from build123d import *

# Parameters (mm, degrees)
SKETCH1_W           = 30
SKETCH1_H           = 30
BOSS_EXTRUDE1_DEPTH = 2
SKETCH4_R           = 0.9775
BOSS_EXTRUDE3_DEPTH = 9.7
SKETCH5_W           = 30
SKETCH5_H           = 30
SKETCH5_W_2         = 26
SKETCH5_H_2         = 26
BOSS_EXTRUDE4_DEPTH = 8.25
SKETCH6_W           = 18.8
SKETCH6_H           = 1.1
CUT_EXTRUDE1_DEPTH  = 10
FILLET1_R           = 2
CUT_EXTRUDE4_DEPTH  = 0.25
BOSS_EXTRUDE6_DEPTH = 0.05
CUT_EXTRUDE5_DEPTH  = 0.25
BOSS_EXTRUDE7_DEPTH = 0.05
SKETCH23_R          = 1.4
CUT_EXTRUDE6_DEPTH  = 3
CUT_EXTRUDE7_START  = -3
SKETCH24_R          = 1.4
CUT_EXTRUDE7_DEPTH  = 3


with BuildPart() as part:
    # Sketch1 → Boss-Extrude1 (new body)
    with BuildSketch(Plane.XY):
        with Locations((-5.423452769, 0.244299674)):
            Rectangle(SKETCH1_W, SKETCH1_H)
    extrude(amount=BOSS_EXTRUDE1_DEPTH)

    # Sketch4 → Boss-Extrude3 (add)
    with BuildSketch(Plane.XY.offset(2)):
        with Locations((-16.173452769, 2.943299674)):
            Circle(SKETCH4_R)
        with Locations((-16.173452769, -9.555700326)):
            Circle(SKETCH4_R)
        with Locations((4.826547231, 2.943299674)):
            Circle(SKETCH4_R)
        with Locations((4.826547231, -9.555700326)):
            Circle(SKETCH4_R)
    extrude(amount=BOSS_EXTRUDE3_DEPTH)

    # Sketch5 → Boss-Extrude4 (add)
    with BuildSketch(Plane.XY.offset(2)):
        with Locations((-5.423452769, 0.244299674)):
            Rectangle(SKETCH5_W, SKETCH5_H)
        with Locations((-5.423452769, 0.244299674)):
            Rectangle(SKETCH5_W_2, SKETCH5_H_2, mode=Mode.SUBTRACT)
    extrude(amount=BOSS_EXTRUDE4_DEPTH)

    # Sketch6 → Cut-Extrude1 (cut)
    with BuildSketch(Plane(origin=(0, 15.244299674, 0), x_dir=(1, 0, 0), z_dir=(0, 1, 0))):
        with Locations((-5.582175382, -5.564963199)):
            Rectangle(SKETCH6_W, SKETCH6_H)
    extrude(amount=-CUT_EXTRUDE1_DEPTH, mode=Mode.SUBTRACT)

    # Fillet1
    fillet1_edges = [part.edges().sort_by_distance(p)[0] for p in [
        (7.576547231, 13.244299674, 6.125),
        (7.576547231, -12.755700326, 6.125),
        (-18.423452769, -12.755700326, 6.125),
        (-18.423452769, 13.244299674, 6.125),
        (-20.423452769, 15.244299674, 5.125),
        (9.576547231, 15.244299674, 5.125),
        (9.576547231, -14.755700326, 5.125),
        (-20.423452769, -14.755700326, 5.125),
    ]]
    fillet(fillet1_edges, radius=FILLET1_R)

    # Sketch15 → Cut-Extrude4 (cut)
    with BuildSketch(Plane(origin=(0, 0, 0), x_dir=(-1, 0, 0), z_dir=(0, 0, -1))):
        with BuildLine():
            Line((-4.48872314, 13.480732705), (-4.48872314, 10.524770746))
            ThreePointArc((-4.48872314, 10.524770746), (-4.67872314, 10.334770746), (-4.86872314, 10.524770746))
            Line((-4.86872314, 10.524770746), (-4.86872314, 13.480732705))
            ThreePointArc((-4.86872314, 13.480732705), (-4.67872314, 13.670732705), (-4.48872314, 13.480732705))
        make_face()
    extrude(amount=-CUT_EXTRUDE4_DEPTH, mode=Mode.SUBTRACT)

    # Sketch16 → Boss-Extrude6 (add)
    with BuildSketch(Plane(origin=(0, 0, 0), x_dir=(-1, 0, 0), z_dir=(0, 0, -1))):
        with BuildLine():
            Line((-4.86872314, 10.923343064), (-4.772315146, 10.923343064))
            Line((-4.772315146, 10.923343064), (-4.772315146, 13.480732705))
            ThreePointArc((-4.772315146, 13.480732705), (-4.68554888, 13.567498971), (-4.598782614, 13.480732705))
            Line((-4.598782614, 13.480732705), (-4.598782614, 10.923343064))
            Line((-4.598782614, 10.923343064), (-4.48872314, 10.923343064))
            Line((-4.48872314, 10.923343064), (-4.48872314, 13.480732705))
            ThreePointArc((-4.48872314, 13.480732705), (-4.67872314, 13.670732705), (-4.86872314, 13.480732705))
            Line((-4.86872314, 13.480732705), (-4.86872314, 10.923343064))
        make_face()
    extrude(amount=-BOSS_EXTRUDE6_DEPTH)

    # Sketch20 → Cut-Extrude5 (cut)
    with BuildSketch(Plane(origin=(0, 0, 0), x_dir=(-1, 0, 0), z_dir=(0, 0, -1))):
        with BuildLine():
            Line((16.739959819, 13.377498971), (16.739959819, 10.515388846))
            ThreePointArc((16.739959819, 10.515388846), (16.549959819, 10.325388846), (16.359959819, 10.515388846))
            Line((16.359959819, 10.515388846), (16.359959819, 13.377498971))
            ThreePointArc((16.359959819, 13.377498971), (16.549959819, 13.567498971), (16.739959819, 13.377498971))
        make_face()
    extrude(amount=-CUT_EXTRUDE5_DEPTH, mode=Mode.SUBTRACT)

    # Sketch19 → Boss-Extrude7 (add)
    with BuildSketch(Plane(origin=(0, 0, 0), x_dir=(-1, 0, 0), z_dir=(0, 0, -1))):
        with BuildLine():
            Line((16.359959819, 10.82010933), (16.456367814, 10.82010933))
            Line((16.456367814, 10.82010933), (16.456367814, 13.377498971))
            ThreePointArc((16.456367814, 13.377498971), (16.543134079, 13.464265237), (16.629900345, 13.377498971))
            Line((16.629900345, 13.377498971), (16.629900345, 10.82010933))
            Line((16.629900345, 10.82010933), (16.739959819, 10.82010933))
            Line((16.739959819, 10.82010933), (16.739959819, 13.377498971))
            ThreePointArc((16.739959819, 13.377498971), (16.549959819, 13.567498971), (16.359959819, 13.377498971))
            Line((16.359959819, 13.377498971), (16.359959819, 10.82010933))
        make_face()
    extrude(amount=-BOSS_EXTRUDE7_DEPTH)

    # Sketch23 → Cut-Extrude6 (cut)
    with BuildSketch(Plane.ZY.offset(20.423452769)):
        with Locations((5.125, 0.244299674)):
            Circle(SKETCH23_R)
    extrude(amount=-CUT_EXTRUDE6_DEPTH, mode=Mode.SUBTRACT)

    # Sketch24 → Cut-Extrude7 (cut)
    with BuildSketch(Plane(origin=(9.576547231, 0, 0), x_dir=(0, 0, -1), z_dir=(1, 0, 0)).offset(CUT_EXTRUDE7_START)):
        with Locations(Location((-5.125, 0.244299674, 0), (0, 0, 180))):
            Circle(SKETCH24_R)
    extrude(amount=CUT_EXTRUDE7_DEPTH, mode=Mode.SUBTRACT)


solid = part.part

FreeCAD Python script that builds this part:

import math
import FreeCAD as App
import Part
import Sketcher
Q = App.Units.Quantity


def edges_at(feature, points):
    """Names of the edges that pass closest to the given points."""
    edges = feature.Shape.Edges
    near = lambda p: min(range(len(edges)), key=lambda i: edges[i].distToShape(Part.Vertex(*p))[0])
    return sorted({f"Edge{near(p) + 1}" for p in points})

doc = App.newDocument("Part")
body = doc.addObject("PartDesign::Body", "Body")

# Sketch on XY plane
sketch1 = doc.addObject("Sketcher::SketchObject", "Sketch")
body.addObject(sketch1)
sketch1.AttachmentSupport = (doc.XY_Plane, [""])
sketch1.MapMode = "FlatFace"
sketch1.addGeometry(Part.LineSegment(App.Vector(-20, 15, 0), App.Vector(-20, -15, 0)), False)
sketch1.addGeometry(Part.LineSegment(App.Vector(-20, -15, 0), App.Vector(10, -15, 0)), False)
sketch1.addGeometry(Part.LineSegment(App.Vector(10, -15, 0), App.Vector(10, 15, 0)), False)
sketch1.addGeometry(Part.LineSegment(App.Vector(10, 15, 0), App.Vector(-20, 15, 0)), False)
sketch1.addConstraint(Sketcher.Constraint("Coincident", 0, 2, 1, 1))
sketch1.addConstraint(Sketcher.Constraint("Coincident", 1, 2, 2, 1))
sketch1.addConstraint(Sketcher.Constraint("Coincident", 2, 2, 3, 1))
sketch1.addConstraint(Sketcher.Constraint("Coincident", 3, 2, 0, 1))
sketch1.addConstraint(Sketcher.Constraint("Vertical", 0))
sketch1.addConstraint(Sketcher.Constraint("Horizontal", 1))
sketch1.addConstraint(Sketcher.Constraint("Vertical", 2))
sketch1.addConstraint(Sketcher.Constraint("Horizontal", 3))
sketch1.addConstraint(Sketcher.Constraint("Equal", 3, 0))
sketch1.addConstraint(Sketcher.Constraint("DistanceX", 1, 1, 1, 2, Q("30 mm")))
sketch1.addConstraint(Sketcher.Constraint("DistanceY", 0, 2, -1, 1, Q("14.7557 mm")))
sketch1.addConstraint(Sketcher.Constraint("DistanceX", 0, 2, -1, 1, Q("20.423453 mm")))
pad1 = doc.addObject("PartDesign::Pad", "Pad")
body.addObject(pad1)
pad1.Profile = sketch1
pad1.Length = 2

# Sketch on XY plane
sketch2 = doc.addObject("Sketcher::SketchObject", "Sketch001")
body.addObject(sketch2)
sketch2.AttachmentSupport = (doc.XY_Plane, [""])
sketch2.MapMode = "FlatFace"
sketch2.AttachmentOffset = App.Placement(App.Vector(0, 0, 2), App.Rotation())
sketch2.addGeometry(Part.Circle(App.Vector(-16.2, 2.9, 0), App.Vector(0, 0, 1), 1), False)
sketch2.addGeometry(Part.Circle(App.Vector(-16.2, -9.6, 0), App.Vector(0, 0, 1), 1), False)
sketch2.addGeometry(Part.Circle(App.Vector(4.8, 2.9, 0), App.Vector(0, 0, 1), 1), False)
sketch2.addGeometry(Part.Circle(App.Vector(4.8, -9.6, 0), App.Vector(0, 0, 1), 1), False)
sketch2.addConstraint(Sketcher.Constraint("Equal", 0, 1))
sketch2.addConstraint(Sketcher.Constraint("Equal", 1, 2))
sketch2.addConstraint(Sketcher.Constraint("Equal", 2, 3))
sketch2.addConstraint(Sketcher.Constraint("Horizontal", 0, 3, 2, 3))
sketch2.addConstraint(Sketcher.Constraint("Horizontal", 1, 3, 3, 3))
sketch2.addConstraint(Sketcher.Constraint("Vertical", 0, 3, 1, 3))
sketch2.addConstraint(Sketcher.Constraint("Vertical", 2, 3, 3, 3))
sketch2.addConstraint(Sketcher.Constraint("Diameter", 0, Q("1.955 mm")))
sketch2.addConstraint(Sketcher.Constraint("DistanceX", 0, 3, 2, 3, Q("21 mm")))
sketch2.addConstraint(Sketcher.Constraint("DistanceY", 1, 3, 0, 3, Q("12.499 mm")))
sketch2.addConstraint(Sketcher.Constraint("DistanceY", -1, 1, 0, 3, Q("2.9433 mm")))
sketch2.addConstraint(Sketcher.Constraint("DistanceX", 0, 3, -1, 1, Q("16.173453 mm")))
pad2 = doc.addObject("PartDesign::Pad", "Pad001")
body.addObject(pad2)
pad2.Profile = sketch2
pad2.Length = 9.7

# Sketch on XY plane
sketch3 = doc.addObject("Sketcher::SketchObject", "Sketch002")
body.addObject(sketch3)
sketch3.AttachmentSupport = (doc.XY_Plane, [""])
sketch3.MapMode = "FlatFace"
sketch3.AttachmentOffset = App.Placement(App.Vector(0, 0, 2), App.Rotation())
sketch3.addGeometry(Part.LineSegment(App.Vector(-20, 15, 0), App.Vector(-20, -15, 0)), False)
sketch3.addGeometry(Part.LineSegment(App.Vector(-20, -15, 0), App.Vector(10, -15, 0)), False)
sketch3.addGeometry(Part.LineSegment(App.Vector(10, -15, 0), App.Vector(10, 15, 0)), False)
sketch3.addGeometry(Part.LineSegment(App.Vector(10, 15, 0), App.Vector(-20, 15, 0)), False)
sketch3.addGeometry(Part.LineSegment(App.Vector(8, -13, 0), App.Vector(-18, -13, 0)), False)
sketch3.addGeometry(Part.LineSegment(App.Vector(-18, -13, 0), App.Vector(-18, 13, 0)), False)
sketch3.addGeometry(Part.LineSegment(App.Vector(-18, 13, 0), App.Vector(8, 13, 0)), False)
sketch3.addGeometry(Part.LineSegment(App.Vector(8, 13, 0), App.Vector(8, -13, 0)), False)
sketch3.addConstraint(Sketcher.Constraint("Coincident", 0, 2, 1, 1))
sketch3.addConstraint(Sketcher.Constraint("Coincident", 1, 2, 2, 1))
sketch3.addConstraint(Sketcher.Constraint("Coincident", 2, 2, 3, 1))
sketch3.addConstraint(Sketcher.Constraint("Coincident", 3, 2, 0, 1))
sketch3.addConstraint(Sketcher.Constraint("Coincident", 4, 2, 5, 1))
sketch3.addConstraint(Sketcher.Constraint("Coincident", 5, 2, 6, 1))
sketch3.addConstraint(Sketcher.Constraint("Coincident", 6, 2, 7, 1))
sketch3.addConstraint(Sketcher.Constraint("Coincident", 7, 2, 4, 1))
sketch3.addConstraint(Sketcher.Constraint("Vertical", 0))
sketch3.addConstraint(Sketcher.Constraint("Horizontal", 1))
sketch3.addConstraint(Sketcher.Constraint("Vertical", 2))
sketch3.addConstraint(Sketcher.Constraint("Horizontal", 3))
sketch3.addConstraint(Sketcher.Constraint("Horizontal", 4))
sketch3.addConstraint(Sketcher.Constraint("Vertical", 5))
sketch3.addConstraint(Sketcher.Constraint("Horizontal", 6))
sketch3.addConstraint(Sketcher.Constraint("Vertical", 7))
sketch3.addConstraint(Sketcher.Constraint("Equal", 3, 0))
sketch3.addConstraint(Sketcher.Constraint("Equal", 6, 5))
sketch3.addConstraint(Sketcher.Constraint("DistanceX", 1, 1, 1, 2, Q("30 mm")))
sketch3.addConstraint(Sketcher.Constraint("DistanceX", 4, 2, 4, 1, Q("26 mm")))
sketch3.addConstraint(Sketcher.Constraint("DistanceX", 0, 2, 4, 2, Q("2 mm")))
sketch3.addConstraint(Sketcher.Constraint("DistanceY", 0, 2, 4, 2, Q("2 mm")))
sketch3.addConstraint(Sketcher.Constraint("DistanceY", 0, 2, -1, 1, Q("14.7557 mm")))
sketch3.addConstraint(Sketcher.Constraint("DistanceX", 0, 2, -1, 1, Q("20.423453 mm")))
pad3 = doc.addObject("PartDesign::Pad", "Pad002")
body.addObject(pad3)
pad3.Profile = sketch3
pad3.Length = 8.25

# Sketch on XZ plane
sketch4 = doc.addObject("Sketcher::SketchObject", "Sketch003")
body.addObject(sketch4)
sketch4.AttachmentSupport = (doc.XZ_Plane, [""])
sketch4.MapMode = "FlatFace"
sketch4.AttachmentOffset = App.Placement(App.Vector(0, 0, -15.2443), App.Rotation())
sketch4.addGeometry(Part.LineSegment(App.Vector(-15, 5, 0), App.Vector(-15, 6.1, 0)), False)
sketch4.addGeometry(Part.LineSegment(App.Vector(-15, 6.1, 0), App.Vector(3.8, 6.1, 0)), False)
sketch4.addGeometry(Part.LineSegment(App.Vector(3.8, 6.1, 0), App.Vector(3.8, 5, 0)), False)
sketch4.addGeometry(Part.LineSegment(App.Vector(3.8, 5, 0), App.Vector(-15, 5, 0)), False)
sketch4.addConstraint(Sketcher.Constraint("Coincident", 0, 2, 1, 1))
sketch4.addConstraint(Sketcher.Constraint("Coincident", 1, 2, 2, 1))
sketch4.addConstraint(Sketcher.Constraint("Coincident", 2, 2, 3, 1))
sketch4.addConstraint(Sketcher.Constraint("Coincident", 3, 2, 0, 1))
sketch4.addConstraint(Sketcher.Constraint("Vertical", 0))
sketch4.addConstraint(Sketcher.Constraint("Horizontal", 1))
sketch4.addConstraint(Sketcher.Constraint("Vertical", 2))
sketch4.addConstraint(Sketcher.Constraint("Horizontal", 3))
sketch4.addConstraint(Sketcher.Constraint("DistanceX", 1, 1, 1, 2, Q("18.8 mm")))
sketch4.addConstraint(Sketcher.Constraint("DistanceY", 0, 1, 0, 2, Q("1.1 mm")))
sketch4.addConstraint(Sketcher.Constraint("DistanceX", 0, 2, -1, 1, Q("14.982175 mm")))
sketch4.addConstraint(Sketcher.Constraint("DistanceY", -1, 1, 0, 2, Q("6.114963 mm")))
pocket1 = doc.addObject("PartDesign::Pocket", "Pocket")
body.addObject(pocket1)
pocket1.Profile = sketch4
pocket1.Length = 10
pocket1.Reversed = True
doc.recompute()

fillet = doc.addObject("PartDesign::Fillet", "Fillet")
body.addObject(fillet)
fillet.Base = (pocket1, edges_at(pocket1, [
    (7.577, 13.244, 6.125),
    (7.577, -12.756, 6.125),
    (-18.423, -12.756, 6.125),
    (-18.423, 13.244, 6.125),
    (-20.423, 15.244, 5.125),
    (9.577, 15.244, 5.125),
    (9.577, -14.756, 5.125),
    (-20.423, -14.756, 5.125),
]))
fillet.Radius = 2

# Sketch on XY plane
sketch5 = doc.addObject("Sketcher::SketchObject", "Sketch004")
body.addObject(sketch5)
sketch5.AttachmentSupport = (doc.XY_Plane, [""])
sketch5.MapMode = "FlatFace"
sketch5.addGeometry(Part.LineSegment(App.Vector(4.49, 10.52, 0), App.Vector(4.49, 13.48, 0)), False)
sketch5.addGeometry(Part.ArcOfCircle(Part.Circle(App.Vector(4.68, 13.48, 0), App.Vector(0, 0, 1), 0.19), math.radians(0), math.radians(180)), False)
sketch5.addGeometry(Part.LineSegment(App.Vector(4.87, 13.48, 0), App.Vector(4.87, 10.52, 0)), False)
sketch5.addGeometry(Part.ArcOfCircle(Part.Circle(App.Vector(4.68, 10.52, 0), App.Vector(0, 0, 1), 0.19), math.radians(180), math.radians(360)), False)
sketch5.addConstraint(Sketcher.Constraint("Tangent", 0, 2, 1, 2))
sketch5.addConstraint(Sketcher.Constraint("Tangent", 1, 1, 2, 1))
sketch5.addConstraint(Sketcher.Constraint("Tangent", 2, 2, 3, 2))
sketch5.addConstraint(Sketcher.Constraint("Tangent", 3, 1, 0, 1))
sketch5.addConstraint(Sketcher.Constraint("Vertical", 0))
sketch5.addConstraint(Sketcher.Constraint("Vertical", 2))
sketch5.addConstraint(Sketcher.Constraint("Radius", 1, Q("0.19 mm")))
sketch5.addConstraint(Sketcher.Constraint("DistanceY", 0, 1, 0, 2, Q("2.955962 mm")))
sketch5.addConstraint(Sketcher.Constraint("DistanceY", -1, 1, 3, 3, Q("10.524771 mm")))
sketch5.addConstraint(Sketcher.Constraint("DistanceX", -1, 1, 1, 3, Q("4.678723 mm")))
pocket2 = doc.addObject("PartDesign::Pocket", "Pocket001")
body.addObject(pocket2)
pocket2.Profile = sketch5
pocket2.Length = 0.25
pocket2.Reversed = True

# Sketch on XY plane
sketch6 = doc.addObject("Sketcher::SketchObject", "Sketch005")
body.addObject(sketch6)
sketch6.AttachmentSupport = (doc.XY_Plane, [""])
sketch6.MapMode = "FlatFace"
sketch6.addGeometry(Part.LineSegment(App.Vector(4.87, 10.92, 0), App.Vector(4.77, 10.92, 0)), False)
sketch6.addGeometry(Part.LineSegment(App.Vector(4.77, 10.92, 0), App.Vector(4.77, 13.48, 0)), False)
sketch6.addGeometry(Part.ArcOfCircle(Part.Circle(App.Vector(4.69, 13.48, 0), App.Vector(0, 0, 1), 0.09), math.radians(0), math.radians(180)), False)
sketch6.addGeometry(Part.LineSegment(App.Vector(4.6, 13.48, 0), App.Vector(4.6, 10.92, 0)), False)
sketch6.addGeometry(Part.LineSegment(App.Vector(4.6, 10.92, 0), App.Vector(4.49, 10.92, 0)), False)
sketch6.addGeometry(Part.LineSegment(App.Vector(4.49, 10.92, 0), App.Vector(4.49, 13.48, 0)), False)
sketch6.addGeometry(Part.ArcOfCircle(Part.Circle(App.Vector(4.68, 13.48, 0), App.Vector(0, 0, 1), 0.19), math.radians(0), math.radians(180)), False)
sketch6.addGeometry(Part.LineSegment(App.Vector(4.87, 13.48, 0), App.Vector(4.87, 10.92, 0)), False)
sketch6.addConstraint(Sketcher.Constraint("Coincident", 0, 2, 1, 1))
sketch6.addConstraint(Sketcher.Constraint("Tangent", 1, 2, 2, 1))
sketch6.addConstraint(Sketcher.Constraint("Tangent", 2, 2, 3, 1))
sketch6.addConstraint(Sketcher.Constraint("Coincident", 3, 2, 4, 1))
sketch6.addConstraint(Sketcher.Constraint("Coincident", 4, 2, 5, 1))
sketch6.addConstraint(Sketcher.Constraint("Tangent", 5, 2, 6, 2))
sketch6.addConstraint(Sketcher.Constraint("Tangent", 6, 1, 7, 1))
sketch6.addConstraint(Sketcher.Constraint("Coincident", 7, 2, 0, 1))
sketch6.addConstraint(Sketcher.Constraint("Horizontal", 0))
sketch6.addConstraint(Sketcher.Constraint("Vertical", 1))
sketch6.addConstraint(Sketcher.Constraint("Vertical", 3))
sketch6.addConstraint(Sketcher.Constraint("Horizontal", 4))
sketch6.addConstraint(Sketcher.Constraint("Vertical", 5))
sketch6.addConstraint(Sketcher.Constraint("Vertical", 7))
sketch6.addConstraint(Sketcher.Constraint("Horizontal", 2, 3, 6, 3))
sketch6.addConstraint(Sketcher.Constraint("Horizontal", 0, 2, 3, 2))
sketch6.addConstraint(Sketcher.Constraint("Radius", 6, Q("0.19 mm")))
sketch6.addConstraint(Sketcher.Constraint("Radius", 2, Q("0.086766 mm")))
sketch6.addConstraint(Sketcher.Constraint("DistanceX", 4, 2, 4, 1, Q("0.110059 mm")))
sketch6.addConstraint(Sketcher.Constraint("DistanceY", 1, 1, 1, 2, Q("2.55739 mm")))
sketch6.addConstraint(Sketcher.Constraint("DistanceX", -1, 1, 2, 3, Q("4.685549 mm")))
sketch6.addConstraint(Sketcher.Constraint("DistanceY", -1, 1, 2, 3, Q("13.480733 mm")))
pad4 = doc.addObject("PartDesign::Pad", "Pad003")
body.addObject(pad4)
pad4.Profile = sketch6
pad4.Length = 0.05

# Sketch on XY plane
sketch7 = doc.addObject("Sketcher::SketchObject", "Sketch006")
body.addObject(sketch7)
sketch7.AttachmentSupport = (doc.XY_Plane, [""])
sketch7.MapMode = "FlatFace"
sketch7.addGeometry(Part.LineSegment(App.Vector(-16.74, 10.52, 0), App.Vector(-16.74, 13.38, 0)), False)
sketch7.addGeometry(Part.ArcOfCircle(Part.Circle(App.Vector(-16.55, 13.38, 0), App.Vector(0, 0, 1), 0.19), math.radians(0), math.radians(180)), False)
sketch7.addGeometry(Part.LineSegment(App.Vector(-16.36, 13.38, 0), App.Vector(-16.36, 10.52, 0)), False)
sketch7.addGeometry(Part.ArcOfCircle(Part.Circle(App.Vector(-16.55, 10.52, 0), App.Vector(0, 0, 1), 0.19), math.radians(180), math.radians(360)), False)
sketch7.addConstraint(Sketcher.Constraint("Tangent", 0, 2, 1, 2))
sketch7.addConstraint(Sketcher.Constraint("Tangent", 1, 1, 2, 1))
sketch7.addConstraint(Sketcher.Constraint("Tangent", 2, 2, 3, 2))
sketch7.addConstraint(Sketcher.Constraint("Tangent", 3, 1, 0, 1))
sketch7.addConstraint(Sketcher.Constraint("Vertical", 0))
sketch7.addConstraint(Sketcher.Constraint("Vertical", 2))
sketch7.addConstraint(Sketcher.Constraint("Radius", 1, Q("0.19 mm")))
sketch7.addConstraint(Sketcher.Constraint("DistanceY", 0, 1, 0, 2, Q("2.86211 mm")))
sketch7.addConstraint(Sketcher.Constraint("DistanceY", -1, 1, 1, 3, Q("13.377499 mm")))
sketch7.addConstraint(Sketcher.Constraint("DistanceX", 1, 3, -1, 1, Q("16.54996 mm")))
pocket3 = doc.addObject("PartDesign::Pocket", "Pocket002")
body.addObject(pocket3)
pocket3.Profile = sketch7
pocket3.Length = 0.25
pocket3.Reversed = True

# Sketch on XY plane
sketch8 = doc.addObject("Sketcher::SketchObject", "Sketch007")
body.addObject(sketch8)
sketch8.AttachmentSupport = (doc.XY_Plane, [""])
sketch8.MapMode = "FlatFace"
sketch8.addGeometry(Part.LineSegment(App.Vector(-16.36, 10.82, 0), App.Vector(-16.46, 10.82, 0)), False)
sketch8.addGeometry(Part.LineSegment(App.Vector(-16.46, 10.82, 0), App.Vector(-16.46, 13.38, 0)), False)
sketch8.addGeometry(Part.ArcOfCircle(Part.Circle(App.Vector(-16.54, 13.38, 0), App.Vector(0, 0, 1), 0.09), math.radians(0), math.radians(180)), False)
sketch8.addGeometry(Part.LineSegment(App.Vector(-16.63, 13.38, 0), App.Vector(-16.63, 10.82, 0)), False)
sketch8.addGeometry(Part.LineSegment(App.Vector(-16.63, 10.82, 0), App.Vector(-16.74, 10.82, 0)), False)
sketch8.addGeometry(Part.LineSegment(App.Vector(-16.74, 10.82, 0), App.Vector(-16.74, 13.38, 0)), False)
sketch8.addGeometry(Part.ArcOfCircle(Part.Circle(App.Vector(-16.55, 13.38, 0), App.Vector(0, 0, 1), 0.19), math.radians(0), math.radians(180)), False)
sketch8.addGeometry(Part.LineSegment(App.Vector(-16.36, 13.38, 0), App.Vector(-16.36, 10.82, 0)), False)
sketch8.addConstraint(Sketcher.Constraint("Coincident", 0, 2, 1, 1))
sketch8.addConstraint(Sketcher.Constraint("Tangent", 1, 2, 2, 1))
sketch8.addConstraint(Sketcher.Constraint("Tangent", 2, 2, 3, 1))
sketch8.addConstraint(Sketcher.Constraint("Coincident", 3, 2, 4, 1))
sketch8.addConstraint(Sketcher.Constraint("Coincident", 4, 2, 5, 1))
sketch8.addConstraint(Sketcher.Constraint("Tangent", 5, 2, 6, 2))
sketch8.addConstraint(Sketcher.Constraint("Tangent", 6, 1, 7, 1))
sketch8.addConstraint(Sketcher.Constraint("Coincident", 7, 2, 0, 1))
sketch8.addConstraint(Sketcher.Constraint("Horizontal", 0))
sketch8.addConstraint(Sketcher.Constraint("Vertical", 1))
sketch8.addConstraint(Sketcher.Constraint("Vertical", 3))
sketch8.addConstraint(Sketcher.Constraint("Horizontal", 4))
sketch8.addConstraint(Sketcher.Constraint("Vertical", 5))
sketch8.addConstraint(Sketcher.Constraint("Vertical", 7))
sketch8.addConstraint(Sketcher.Constraint("Horizontal", 2, 3, 6, 3))
sketch8.addConstraint(Sketcher.Constraint("Horizontal", 0, 2, 3, 2))
sketch8.addConstraint(Sketcher.Constraint("Radius", 6, Q("0.19 mm")))
sketch8.addConstraint(Sketcher.Constraint("Radius", 2, Q("0.086766 mm")))
sketch8.addConstraint(Sketcher.Constraint("DistanceX", 4, 2, 4, 1, Q("0.110059 mm")))
sketch8.addConstraint(Sketcher.Constraint("DistanceY", 1, 1, 1, 2, Q("2.55739 mm")))
sketch8.addConstraint(Sketcher.Constraint("DistanceY", -1, 1, 2, 3, Q("13.377499 mm")))
sketch8.addConstraint(Sketcher.Constraint("DistanceX", 2, 2, -1, 1, Q("16.6299 mm")))
pad5 = doc.addObject("PartDesign::Pad", "Pad004")
body.addObject(pad5)
pad5.Profile = sketch8
pad5.Length = 0.05

# Sketch on YZ plane
sketch9 = doc.addObject("Sketcher::SketchObject", "Sketch008")
body.addObject(sketch9)
sketch9.AttachmentSupport = (doc.YZ_Plane, [""])
sketch9.MapMode = "FlatFace"
sketch9.AttachmentOffset = App.Placement(App.Vector(0, 0, -20.423453), App.Rotation())
sketch9.addGeometry(Part.Circle(App.Vector(0.2, 5.1, 0), App.Vector(0, 0, 1), 1.4), False)
sketch9.addConstraint(Sketcher.Constraint("Diameter", 0, Q("2.8 mm")))
sketch9.addConstraint(Sketcher.Constraint("DistanceY", -1, 1, 0, 3, Q("5.125 mm")))
sketch9.addConstraint(Sketcher.Constraint("DistanceX", -1, 1, 0, 3, Q("0.2443 mm")))
pocket4 = doc.addObject("PartDesign::Pocket", "Pocket003")
body.addObject(pocket4)
pocket4.Profile = sketch9
pocket4.Length = 3
pocket4.Reversed = True

# Sketch on YZ plane
sketch10 = doc.addObject("Sketcher::SketchObject", "Sketch009")
body.addObject(sketch10)
sketch10.AttachmentSupport = (doc.YZ_Plane, [""])
sketch10.MapMode = "FlatFace"
sketch10.AttachmentOffset = App.Placement(App.Vector(0, 0, 6.576547), App.Rotation())
sketch10.addGeometry(Part.Circle(App.Vector(0.2, 5.1, 0), App.Vector(0, 0, 1), 1.4), False)
sketch10.addConstraint(Sketcher.Constraint("Diameter", 0, Q("2.8 mm")))
sketch10.addConstraint(Sketcher.Constraint("DistanceY", -1, 1, 0, 3, Q("5.125 mm")))
sketch10.addConstraint(Sketcher.Constraint("DistanceX", -1, 1, 0, 3, Q("0.2443 mm")))
pocket5 = doc.addObject("PartDesign::Pocket", "Pocket004")
body.addObject(pocket5)
pocket5.Profile = sketch10
pocket5.Length = 3
pocket5.Reversed = True

doc.recompute()
